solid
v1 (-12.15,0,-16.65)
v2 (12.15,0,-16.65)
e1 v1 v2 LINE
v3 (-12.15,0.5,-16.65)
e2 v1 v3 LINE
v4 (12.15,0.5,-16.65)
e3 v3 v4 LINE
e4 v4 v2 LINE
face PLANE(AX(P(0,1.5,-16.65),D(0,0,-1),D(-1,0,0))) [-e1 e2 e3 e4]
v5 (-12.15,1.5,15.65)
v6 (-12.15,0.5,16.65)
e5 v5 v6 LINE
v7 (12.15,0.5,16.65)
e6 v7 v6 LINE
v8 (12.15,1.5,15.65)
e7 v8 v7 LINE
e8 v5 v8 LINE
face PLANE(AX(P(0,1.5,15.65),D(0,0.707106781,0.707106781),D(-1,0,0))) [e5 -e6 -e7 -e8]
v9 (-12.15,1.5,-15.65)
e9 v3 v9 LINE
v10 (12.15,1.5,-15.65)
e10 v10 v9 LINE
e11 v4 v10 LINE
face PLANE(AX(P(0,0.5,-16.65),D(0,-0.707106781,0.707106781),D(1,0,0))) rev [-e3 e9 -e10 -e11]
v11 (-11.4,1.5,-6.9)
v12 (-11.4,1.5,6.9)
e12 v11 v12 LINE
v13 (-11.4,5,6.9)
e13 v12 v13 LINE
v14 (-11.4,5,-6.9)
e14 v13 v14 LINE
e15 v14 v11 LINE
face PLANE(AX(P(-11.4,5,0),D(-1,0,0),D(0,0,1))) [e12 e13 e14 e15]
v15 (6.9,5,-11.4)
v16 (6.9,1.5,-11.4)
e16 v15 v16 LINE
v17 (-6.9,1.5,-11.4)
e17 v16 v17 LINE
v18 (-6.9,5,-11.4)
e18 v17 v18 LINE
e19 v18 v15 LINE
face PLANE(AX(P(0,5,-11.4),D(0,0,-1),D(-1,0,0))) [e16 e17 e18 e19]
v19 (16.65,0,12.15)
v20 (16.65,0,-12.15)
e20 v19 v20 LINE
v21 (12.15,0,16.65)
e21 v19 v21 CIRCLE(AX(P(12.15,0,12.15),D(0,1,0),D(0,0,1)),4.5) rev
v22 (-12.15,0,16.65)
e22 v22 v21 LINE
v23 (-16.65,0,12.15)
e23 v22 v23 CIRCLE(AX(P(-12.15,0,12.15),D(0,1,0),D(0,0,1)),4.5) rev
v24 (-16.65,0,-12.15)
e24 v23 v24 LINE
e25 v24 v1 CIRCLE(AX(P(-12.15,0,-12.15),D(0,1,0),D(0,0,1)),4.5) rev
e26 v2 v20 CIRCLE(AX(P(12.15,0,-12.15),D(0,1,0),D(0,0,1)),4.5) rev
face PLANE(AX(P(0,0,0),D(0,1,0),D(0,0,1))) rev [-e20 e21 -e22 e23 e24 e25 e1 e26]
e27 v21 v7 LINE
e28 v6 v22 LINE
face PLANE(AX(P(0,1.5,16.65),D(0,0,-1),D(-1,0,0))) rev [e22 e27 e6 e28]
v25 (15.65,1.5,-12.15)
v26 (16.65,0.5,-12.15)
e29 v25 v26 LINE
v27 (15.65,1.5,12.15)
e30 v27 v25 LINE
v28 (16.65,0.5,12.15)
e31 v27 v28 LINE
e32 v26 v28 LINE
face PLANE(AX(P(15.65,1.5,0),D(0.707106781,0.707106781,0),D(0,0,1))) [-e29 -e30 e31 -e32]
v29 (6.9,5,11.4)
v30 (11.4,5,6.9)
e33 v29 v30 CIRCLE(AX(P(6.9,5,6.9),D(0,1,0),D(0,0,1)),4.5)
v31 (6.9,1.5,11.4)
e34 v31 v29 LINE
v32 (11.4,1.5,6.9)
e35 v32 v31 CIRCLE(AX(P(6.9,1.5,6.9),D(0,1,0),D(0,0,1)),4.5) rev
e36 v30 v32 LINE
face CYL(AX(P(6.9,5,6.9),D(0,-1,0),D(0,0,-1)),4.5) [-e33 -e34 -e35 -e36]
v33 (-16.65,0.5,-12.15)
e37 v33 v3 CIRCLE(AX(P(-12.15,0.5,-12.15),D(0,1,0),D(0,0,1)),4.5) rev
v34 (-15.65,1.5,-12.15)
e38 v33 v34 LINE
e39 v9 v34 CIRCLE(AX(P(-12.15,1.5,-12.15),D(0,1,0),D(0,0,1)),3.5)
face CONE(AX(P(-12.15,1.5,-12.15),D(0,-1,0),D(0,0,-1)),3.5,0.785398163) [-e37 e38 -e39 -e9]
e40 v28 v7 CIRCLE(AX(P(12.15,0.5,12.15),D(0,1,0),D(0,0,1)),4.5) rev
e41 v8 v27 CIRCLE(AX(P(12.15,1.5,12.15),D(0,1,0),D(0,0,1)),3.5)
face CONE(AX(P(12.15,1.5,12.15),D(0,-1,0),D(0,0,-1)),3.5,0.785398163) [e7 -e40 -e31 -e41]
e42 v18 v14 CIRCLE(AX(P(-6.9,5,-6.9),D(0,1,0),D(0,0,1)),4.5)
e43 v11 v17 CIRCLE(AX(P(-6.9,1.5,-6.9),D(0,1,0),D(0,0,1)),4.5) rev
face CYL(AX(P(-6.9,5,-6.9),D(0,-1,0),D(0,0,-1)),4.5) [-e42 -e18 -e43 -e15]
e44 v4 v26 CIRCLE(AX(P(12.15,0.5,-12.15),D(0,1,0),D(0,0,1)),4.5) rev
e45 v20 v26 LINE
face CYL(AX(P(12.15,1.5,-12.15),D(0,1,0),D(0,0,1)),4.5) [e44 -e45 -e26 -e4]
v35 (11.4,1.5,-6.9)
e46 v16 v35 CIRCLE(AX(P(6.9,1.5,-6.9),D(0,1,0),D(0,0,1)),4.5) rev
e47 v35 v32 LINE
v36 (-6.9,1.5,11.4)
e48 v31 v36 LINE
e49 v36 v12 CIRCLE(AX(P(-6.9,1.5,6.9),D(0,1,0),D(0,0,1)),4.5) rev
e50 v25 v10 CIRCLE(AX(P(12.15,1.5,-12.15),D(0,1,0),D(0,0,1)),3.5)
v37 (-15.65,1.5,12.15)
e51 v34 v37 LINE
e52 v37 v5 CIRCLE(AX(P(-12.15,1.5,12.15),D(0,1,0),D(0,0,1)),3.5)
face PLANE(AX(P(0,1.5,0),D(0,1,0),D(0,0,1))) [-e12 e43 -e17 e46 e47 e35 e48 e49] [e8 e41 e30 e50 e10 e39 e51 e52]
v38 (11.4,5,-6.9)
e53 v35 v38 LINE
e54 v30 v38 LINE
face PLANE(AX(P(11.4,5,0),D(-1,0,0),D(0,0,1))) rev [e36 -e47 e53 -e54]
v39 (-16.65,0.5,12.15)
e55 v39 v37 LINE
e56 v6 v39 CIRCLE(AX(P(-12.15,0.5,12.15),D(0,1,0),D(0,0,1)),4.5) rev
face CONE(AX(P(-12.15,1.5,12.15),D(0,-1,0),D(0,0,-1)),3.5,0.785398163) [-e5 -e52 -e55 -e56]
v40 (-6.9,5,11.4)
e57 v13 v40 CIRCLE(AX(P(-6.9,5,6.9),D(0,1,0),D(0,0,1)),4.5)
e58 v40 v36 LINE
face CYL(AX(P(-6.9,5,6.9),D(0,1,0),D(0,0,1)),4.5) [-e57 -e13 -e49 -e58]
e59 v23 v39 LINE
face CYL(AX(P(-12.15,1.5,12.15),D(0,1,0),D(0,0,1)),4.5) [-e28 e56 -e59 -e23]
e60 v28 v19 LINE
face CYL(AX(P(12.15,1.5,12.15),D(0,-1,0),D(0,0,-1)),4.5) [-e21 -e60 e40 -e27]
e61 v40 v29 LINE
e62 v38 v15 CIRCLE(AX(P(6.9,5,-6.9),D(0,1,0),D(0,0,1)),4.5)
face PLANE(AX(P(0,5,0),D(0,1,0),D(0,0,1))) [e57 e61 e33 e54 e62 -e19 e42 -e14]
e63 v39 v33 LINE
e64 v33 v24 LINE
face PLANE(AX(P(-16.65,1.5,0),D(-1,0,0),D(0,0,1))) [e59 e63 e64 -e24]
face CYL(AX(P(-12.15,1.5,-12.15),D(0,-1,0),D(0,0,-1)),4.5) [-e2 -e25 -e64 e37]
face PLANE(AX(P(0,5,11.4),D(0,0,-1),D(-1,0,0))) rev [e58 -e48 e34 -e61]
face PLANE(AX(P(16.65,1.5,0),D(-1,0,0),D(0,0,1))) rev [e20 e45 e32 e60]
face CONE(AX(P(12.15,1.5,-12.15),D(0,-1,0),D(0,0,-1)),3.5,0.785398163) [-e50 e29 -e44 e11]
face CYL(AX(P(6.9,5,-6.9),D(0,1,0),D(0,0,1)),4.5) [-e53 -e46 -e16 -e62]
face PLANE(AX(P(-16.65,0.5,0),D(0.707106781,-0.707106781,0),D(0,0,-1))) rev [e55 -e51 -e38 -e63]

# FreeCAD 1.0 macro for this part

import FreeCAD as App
import Part
import Sketcher
from FreeCAD import Vector
Q = App.Units.Quantity


def edges_at(feature, points):
    """Names of the edges that pass closest to the given points."""
    edges = feature.Shape.Edges
    near = lambda p: min(range(len(edges)), key=lambda i: edges[i].distToShape(Part.Vertex(*p))[0])
    return sorted({f"Edge{near(p) + 1}" for p in points})

doc = App.newDocument("Part")
body = doc.addObject("PartDesign::Body", "Body")

# Sketch on XZ plane
sketch1 = body.newObject("Sketcher::SketchObject", "Sketch")
sketch1.AttachmentSupport = (doc.getObject("XZ_Plane"), [""])
sketch1.MapMode = "FlatFace"
sketch1.addGeometry([
    Part.LineSegment(Vector(-16.65, -16.65, 0), Vector(-16.65, 16.65, 0)),
    Part.LineSegment(Vector(-16.65, 16.65, 0), Vector(16.65, 16.65, 0)),
    Part.LineSegment(Vector(16.65, 16.65, 0), Vector(16.65, -16.65, 0)),
    Part.LineSegment(Vector(16.65, -16.65, 0), Vector(-16.65, -16.65, 0)),
], False)
sketch1.addConstraint([
    Sketcher.Constraint("Coincident", 0, 2, 1, 1),
    Sketcher.Constraint("Coincident", 1, 2, 2, 1),
    Sketcher.Constraint("Coincident", 2, 2, 3, 1),
    Sketcher.Constraint("Coincident", 3, 2, 0, 1),
    Sketcher.Constraint("Vertical", 0),
    Sketcher.Constraint("Horizontal", 1),
    Sketcher.Constraint("Vertical", 2),
    Sketcher.Constraint("Horizontal", 3),
    Sketcher.Constraint("Symmetric", 0, 2, 2, 2, -1, 1),
    Sketcher.Constraint("Equal", 3, 0),
    Sketcher.Constraint("DistanceX", 1, 1, 1, 2, Q("33.3 mm")),
])
pad1 = body.newObject("PartDesign::Pad", "Pad")
pad1.Profile = sketch1
pad1.Length = 1.5
pad1.Reversed = True

# Sketch on XZ plane
sketch2 = body.newObject("Sketcher::SketchObject", "Sketch001")
sketch2.AttachmentSupport = (doc.getObject("XZ_Plane"), [""])
sketch2.MapMode = "FlatFace"
sketch2.addGeometry([
    Part.LineSegment(Vector(-11.4, -11.4, 0), Vector(-11.4, 11.4, 0)),
    Part.LineSegment(Vector(-11.4, 11.4, 0), Vector(11.4, 11.4, 0)),
    Part.LineSegment(Vector(11.4, 11.4, 0), Vector(11.4, -11.4, 0)),
    Part.LineSegment(Vector(11.4, -11.4, 0), Vector(-11.4, -11.4, 0)),
], False)
sketch2.addConstraint([
    Sketcher.Constraint("Coincident", 0, 2, 1, 1),
    Sketcher.Constraint("Coincident", 1, 2, 2, 1),
    Sketcher.Constraint("Coincident", 2, 2, 3, 1),
    Sketcher.Constraint("Coincident", 3, 2, 0, 1),
    Sketcher.Constraint("Vertical", 0),
    Sketcher.Constraint("Horizontal", 1),
    Sketcher.Constraint("Vertical", 2),
    Sketcher.Constraint("Horizontal", 3),
    Sketcher.Constraint("Symmetric", 0, 2, 2, 2, -1, 1),
    Sketcher.Constraint("Equal", 3, 0),
    Sketcher.Constraint("DistanceX", 1, 1, 1, 2, Q("22.8 mm")),
])
pad2 = body.newObject("PartDesign::Pad", "Pad001")
pad2.Profile = sketch2
pad2.Length = 5
pad2.Reversed = True
doc.recompute()

fillet = body.newObject("PartDesign::Fillet", "Fillet")
fillet.Base = (pad2, edges_at(pad2, [
    (-11.4, 3.25, 11.4),
    (11.4, 3.25, 11.4),
    (11.4, 3.25, -11.4),
    (-11.4, 3.25, -11.4),
    (-16.65, 0.75, 16.65),
    (-16.65, 0.75, -16.65),
    (16.65, 0.75, -16.65),
    (16.65, 0.75, 16.65),
]))
fillet.Radius = 4.5
doc.recompute()

chamfer = body.newObject("PartDesign::Chamfer", "Chamfer")
chamfer.Base = (fillet, edges_at(fillet, [
    (16.65, 1.5, 0),
    (0, 1.5, 16.65),
    (0, 1.5, -16.65),
    (-16.65, 1.5, 0),
    (-15.332, 1.5, 15.332),
    (-15.332, 1.5, -15.332),
    (15.332, 1.5, -15.332),
    (15.332, 1.5, 15.332),
]))
chamfer.Size = 1

doc.recompute()
